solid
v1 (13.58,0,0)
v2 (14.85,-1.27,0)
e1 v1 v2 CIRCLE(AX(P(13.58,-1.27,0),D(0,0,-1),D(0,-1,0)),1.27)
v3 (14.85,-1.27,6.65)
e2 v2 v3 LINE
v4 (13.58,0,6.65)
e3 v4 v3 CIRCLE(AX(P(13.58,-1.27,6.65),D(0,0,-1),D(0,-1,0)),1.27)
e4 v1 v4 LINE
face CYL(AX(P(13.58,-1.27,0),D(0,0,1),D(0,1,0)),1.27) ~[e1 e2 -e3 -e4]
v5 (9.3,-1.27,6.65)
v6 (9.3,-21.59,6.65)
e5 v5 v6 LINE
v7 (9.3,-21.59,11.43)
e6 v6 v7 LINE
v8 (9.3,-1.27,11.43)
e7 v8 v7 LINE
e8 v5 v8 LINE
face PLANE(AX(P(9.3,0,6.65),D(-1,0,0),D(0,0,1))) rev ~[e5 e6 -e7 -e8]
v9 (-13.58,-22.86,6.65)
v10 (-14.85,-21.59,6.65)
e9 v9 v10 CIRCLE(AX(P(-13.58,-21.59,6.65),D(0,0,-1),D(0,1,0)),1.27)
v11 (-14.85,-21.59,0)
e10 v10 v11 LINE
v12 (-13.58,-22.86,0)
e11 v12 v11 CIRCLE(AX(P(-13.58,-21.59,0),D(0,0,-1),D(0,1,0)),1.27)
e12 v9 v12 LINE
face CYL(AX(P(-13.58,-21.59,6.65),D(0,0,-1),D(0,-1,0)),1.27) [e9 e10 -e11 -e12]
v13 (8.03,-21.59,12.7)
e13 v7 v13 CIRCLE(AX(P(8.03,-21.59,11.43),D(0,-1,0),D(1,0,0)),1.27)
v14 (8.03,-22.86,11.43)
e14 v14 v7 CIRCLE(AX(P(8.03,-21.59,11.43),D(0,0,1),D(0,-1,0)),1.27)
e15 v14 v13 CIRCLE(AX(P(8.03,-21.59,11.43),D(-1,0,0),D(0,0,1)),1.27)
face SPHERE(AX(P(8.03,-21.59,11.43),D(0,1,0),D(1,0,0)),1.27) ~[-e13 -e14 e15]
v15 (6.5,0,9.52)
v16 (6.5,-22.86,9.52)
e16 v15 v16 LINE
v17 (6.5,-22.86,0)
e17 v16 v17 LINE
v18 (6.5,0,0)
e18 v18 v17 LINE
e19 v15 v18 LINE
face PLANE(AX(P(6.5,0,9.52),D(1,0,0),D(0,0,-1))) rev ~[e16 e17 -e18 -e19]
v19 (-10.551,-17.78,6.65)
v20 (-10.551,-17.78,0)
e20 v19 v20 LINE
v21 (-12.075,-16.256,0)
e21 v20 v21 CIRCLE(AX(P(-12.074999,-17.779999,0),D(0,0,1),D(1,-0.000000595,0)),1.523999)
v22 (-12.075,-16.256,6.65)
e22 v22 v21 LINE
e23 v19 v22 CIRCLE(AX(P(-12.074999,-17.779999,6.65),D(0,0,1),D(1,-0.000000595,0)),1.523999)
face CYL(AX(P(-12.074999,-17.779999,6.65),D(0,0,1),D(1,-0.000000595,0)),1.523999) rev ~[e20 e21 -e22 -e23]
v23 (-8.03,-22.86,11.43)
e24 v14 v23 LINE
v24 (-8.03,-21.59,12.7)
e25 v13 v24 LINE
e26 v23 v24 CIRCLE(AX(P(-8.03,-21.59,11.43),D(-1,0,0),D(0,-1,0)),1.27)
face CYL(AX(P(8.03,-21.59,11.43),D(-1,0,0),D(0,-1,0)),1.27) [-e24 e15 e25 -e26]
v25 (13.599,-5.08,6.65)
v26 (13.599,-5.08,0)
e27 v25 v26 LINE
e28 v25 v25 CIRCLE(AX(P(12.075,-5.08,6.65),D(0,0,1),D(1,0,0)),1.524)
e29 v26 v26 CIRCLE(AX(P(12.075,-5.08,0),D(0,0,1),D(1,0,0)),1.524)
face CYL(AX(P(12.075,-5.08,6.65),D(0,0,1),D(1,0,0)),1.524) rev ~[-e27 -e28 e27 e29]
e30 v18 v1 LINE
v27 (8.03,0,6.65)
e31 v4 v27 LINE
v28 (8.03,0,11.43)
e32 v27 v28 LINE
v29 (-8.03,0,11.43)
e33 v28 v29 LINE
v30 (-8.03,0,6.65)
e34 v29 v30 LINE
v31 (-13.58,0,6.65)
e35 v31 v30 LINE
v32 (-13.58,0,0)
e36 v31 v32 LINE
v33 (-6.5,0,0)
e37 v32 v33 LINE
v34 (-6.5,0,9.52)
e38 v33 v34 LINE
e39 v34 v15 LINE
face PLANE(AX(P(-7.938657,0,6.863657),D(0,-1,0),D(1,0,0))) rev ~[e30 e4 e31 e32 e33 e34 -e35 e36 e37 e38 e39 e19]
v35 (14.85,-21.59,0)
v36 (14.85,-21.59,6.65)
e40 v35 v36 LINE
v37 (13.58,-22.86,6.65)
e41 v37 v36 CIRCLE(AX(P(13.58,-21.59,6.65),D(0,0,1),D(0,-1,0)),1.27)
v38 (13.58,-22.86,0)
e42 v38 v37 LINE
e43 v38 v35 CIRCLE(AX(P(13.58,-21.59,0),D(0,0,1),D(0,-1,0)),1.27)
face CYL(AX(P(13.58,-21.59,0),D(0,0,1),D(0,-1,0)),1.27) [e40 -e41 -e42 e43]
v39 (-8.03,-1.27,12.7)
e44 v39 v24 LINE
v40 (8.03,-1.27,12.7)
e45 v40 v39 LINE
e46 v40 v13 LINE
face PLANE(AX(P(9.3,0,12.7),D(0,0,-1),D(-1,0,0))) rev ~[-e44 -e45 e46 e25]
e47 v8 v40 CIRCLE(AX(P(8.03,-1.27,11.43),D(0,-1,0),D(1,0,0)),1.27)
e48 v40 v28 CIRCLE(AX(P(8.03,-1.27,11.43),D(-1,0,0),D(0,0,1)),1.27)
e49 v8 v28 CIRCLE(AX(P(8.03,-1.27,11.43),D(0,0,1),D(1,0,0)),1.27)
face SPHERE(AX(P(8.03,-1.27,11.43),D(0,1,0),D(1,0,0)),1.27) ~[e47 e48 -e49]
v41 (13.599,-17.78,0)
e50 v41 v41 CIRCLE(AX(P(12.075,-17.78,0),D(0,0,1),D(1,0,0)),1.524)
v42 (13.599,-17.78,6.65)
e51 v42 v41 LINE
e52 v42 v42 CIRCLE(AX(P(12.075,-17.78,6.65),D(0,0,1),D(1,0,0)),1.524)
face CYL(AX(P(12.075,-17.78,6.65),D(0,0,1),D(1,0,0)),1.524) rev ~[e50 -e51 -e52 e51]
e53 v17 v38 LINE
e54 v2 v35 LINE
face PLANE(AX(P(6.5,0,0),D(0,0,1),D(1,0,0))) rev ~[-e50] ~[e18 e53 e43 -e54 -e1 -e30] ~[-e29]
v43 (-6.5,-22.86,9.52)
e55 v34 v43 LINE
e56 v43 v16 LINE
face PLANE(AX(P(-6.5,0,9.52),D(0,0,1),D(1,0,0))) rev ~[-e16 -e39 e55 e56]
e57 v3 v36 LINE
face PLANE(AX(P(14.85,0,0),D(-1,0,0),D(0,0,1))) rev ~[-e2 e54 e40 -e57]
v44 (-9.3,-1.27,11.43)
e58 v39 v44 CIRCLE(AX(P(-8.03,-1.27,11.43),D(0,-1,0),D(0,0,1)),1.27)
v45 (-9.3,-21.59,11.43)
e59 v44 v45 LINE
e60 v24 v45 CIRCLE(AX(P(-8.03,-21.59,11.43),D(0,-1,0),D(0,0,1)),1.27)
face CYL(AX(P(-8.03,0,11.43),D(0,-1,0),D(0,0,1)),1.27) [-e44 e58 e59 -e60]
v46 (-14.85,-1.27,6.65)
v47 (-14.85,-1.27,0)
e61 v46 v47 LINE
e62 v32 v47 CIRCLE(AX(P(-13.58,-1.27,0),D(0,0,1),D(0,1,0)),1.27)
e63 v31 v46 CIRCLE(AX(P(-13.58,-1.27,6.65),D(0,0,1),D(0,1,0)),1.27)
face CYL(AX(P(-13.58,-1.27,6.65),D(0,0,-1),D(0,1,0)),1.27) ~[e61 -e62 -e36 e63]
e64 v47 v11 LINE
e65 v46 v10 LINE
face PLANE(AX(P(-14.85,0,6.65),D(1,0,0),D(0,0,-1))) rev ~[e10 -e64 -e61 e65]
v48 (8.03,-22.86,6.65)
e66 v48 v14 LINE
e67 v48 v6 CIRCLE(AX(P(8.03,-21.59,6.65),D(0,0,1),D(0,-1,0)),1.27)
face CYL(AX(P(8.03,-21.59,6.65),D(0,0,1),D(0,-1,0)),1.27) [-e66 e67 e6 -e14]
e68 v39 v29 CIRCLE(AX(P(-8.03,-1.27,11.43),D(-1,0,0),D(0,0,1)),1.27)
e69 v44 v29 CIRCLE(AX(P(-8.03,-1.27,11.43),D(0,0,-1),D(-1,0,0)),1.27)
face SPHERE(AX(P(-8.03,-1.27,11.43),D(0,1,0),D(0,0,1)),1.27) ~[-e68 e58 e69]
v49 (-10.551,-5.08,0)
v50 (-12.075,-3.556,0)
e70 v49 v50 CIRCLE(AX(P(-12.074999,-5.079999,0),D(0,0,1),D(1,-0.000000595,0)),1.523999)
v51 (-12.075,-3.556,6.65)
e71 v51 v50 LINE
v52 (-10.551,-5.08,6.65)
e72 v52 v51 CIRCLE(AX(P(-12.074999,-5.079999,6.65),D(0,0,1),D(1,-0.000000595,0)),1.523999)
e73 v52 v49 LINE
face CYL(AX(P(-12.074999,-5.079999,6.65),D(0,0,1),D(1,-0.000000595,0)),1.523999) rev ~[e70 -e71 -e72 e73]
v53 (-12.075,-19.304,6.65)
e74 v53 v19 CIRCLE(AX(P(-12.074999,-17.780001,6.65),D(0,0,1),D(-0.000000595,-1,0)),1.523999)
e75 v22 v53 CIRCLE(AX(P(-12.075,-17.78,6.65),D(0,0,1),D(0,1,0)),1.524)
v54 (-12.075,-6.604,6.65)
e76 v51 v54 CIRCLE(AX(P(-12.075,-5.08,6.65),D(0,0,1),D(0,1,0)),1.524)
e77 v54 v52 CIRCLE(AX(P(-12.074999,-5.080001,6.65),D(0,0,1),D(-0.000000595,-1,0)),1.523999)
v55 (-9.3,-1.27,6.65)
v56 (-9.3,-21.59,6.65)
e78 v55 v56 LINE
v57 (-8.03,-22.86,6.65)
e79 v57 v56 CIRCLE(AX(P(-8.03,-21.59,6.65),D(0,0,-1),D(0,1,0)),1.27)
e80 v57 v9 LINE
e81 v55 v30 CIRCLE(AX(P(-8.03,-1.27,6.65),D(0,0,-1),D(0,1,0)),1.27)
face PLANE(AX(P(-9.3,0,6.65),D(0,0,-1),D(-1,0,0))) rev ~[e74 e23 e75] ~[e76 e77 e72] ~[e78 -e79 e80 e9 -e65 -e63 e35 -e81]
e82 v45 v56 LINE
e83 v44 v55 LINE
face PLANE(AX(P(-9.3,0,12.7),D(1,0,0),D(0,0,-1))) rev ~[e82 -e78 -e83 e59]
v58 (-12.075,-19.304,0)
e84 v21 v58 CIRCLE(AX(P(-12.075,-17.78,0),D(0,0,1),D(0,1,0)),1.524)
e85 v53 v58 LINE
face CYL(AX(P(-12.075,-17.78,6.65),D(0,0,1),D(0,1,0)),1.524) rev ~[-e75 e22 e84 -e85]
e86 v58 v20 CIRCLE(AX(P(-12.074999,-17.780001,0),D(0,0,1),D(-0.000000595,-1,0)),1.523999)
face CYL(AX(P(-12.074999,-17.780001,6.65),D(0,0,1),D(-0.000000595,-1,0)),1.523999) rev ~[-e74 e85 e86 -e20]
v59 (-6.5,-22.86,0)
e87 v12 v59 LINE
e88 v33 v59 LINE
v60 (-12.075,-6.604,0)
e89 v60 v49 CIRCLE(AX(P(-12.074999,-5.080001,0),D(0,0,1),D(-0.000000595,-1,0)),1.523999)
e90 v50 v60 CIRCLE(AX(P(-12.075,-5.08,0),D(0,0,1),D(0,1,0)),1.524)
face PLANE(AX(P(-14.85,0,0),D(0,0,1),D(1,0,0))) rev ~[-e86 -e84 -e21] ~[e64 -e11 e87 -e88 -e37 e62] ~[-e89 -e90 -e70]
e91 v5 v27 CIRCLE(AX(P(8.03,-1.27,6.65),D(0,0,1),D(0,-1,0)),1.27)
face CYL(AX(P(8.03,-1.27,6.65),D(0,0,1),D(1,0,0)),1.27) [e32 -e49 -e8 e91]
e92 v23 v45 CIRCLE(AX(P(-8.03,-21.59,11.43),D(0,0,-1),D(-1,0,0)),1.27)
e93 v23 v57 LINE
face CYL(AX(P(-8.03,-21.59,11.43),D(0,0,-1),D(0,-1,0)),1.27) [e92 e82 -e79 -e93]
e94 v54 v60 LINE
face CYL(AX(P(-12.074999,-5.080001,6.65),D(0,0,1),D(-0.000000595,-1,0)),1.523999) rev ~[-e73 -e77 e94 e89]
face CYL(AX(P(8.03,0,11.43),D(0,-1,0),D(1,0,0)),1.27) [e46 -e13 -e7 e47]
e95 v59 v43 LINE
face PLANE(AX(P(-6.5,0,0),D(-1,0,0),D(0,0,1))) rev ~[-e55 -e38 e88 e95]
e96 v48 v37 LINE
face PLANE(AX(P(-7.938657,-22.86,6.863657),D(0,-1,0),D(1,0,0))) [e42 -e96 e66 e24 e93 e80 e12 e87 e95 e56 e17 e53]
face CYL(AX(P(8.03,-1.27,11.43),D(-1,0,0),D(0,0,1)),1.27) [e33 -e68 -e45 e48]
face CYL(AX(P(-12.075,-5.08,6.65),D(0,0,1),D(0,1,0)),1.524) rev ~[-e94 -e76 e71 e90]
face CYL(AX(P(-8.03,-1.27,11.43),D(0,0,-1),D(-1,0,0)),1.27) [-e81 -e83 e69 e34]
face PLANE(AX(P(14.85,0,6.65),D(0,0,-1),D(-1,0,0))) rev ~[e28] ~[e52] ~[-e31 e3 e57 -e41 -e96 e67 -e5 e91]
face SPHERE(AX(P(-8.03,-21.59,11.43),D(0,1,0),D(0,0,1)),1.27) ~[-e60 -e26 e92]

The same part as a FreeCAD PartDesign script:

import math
import FreeCAD as App
import Part
import Sketcher
from FreeCAD import Vector
Q = App.Units.Quantity


def edges_at(feature, points):
    """Names of the edges that pass closest to the given points."""
    edges = feature.Shape.Edges
    near = lambda p: min(range(len(edges)), key=lambda i: edges[i].distToShape(Part.Vertex(*p))[0])
    return sorted({f"Edge{near(p) + 1}" for p in points})


def add_polygon(sketch, points):
    """Adds a closed chain of lines whose ends are joined by coincident constraints."""
    first, n = sketch.GeometryCount, len(points)
    for a, b in zip(points, points[1:] + points[:1]):
        sketch.addGeometry(Part.LineSegment(App.Vector(*a, 0), App.Vector(*b, 0)), False)
    for i in range(n):
        sketch.addConstraint(Sketcher.Constraint("Coincident", first + i, 2, first + (i + 1) % n, 1))

doc = App.newDocument("Part")
params = doc.addObject("Spreadsheet::Sheet", "Params")
for row, (alias, value) in enumerate([
    ("pad1_length", "0.9 in"),
    ("fillet_radius", "0.05 in"),
    ("sketch2_diameter", "0.12 in"),
    ("fillet2_radius", "0.05 in"),
], start=1):
    params.set(f"A{row}", alias)
    params.set(f"B{row}", "=" + value)
    params.setAlias(f"B{row}", alias)

body = doc.addObject("PartDesign::Body", "Body")

sketch1 = body.newObject("Sketcher::SketchObject", "Sketch")
sketch1.AttachmentSupport = (doc.getObject("XZ_Plane"), [""])
sketch1.MapMode = "FlatFace"
add_polygon(sketch1, [(-15, 7), (-15, 0), (-6, 0), (-6, 10), (6, 10), (6, 0), (15, 0), (15, 7), (9, 7), (9, 13), (-9, 13), (-9, 7)])
sketch1.addConstraint(Sketcher.Constraint("Vertical", 0))
sketch1.addConstraint(Sketcher.Constraint("Horizontal", 1))
sketch1.addConstraint(Sketcher.Constraint("Vertical", 2))
sketch1.addConstraint(Sketcher.Constraint("Horizontal", 3))
sketch1.addConstraint(Sketcher.Constraint("Vertical", 4))
sketch1.addConstraint(Sketcher.Constraint("Horizontal", 5))
sketch1.addConstraint(Sketcher.Constraint("Vertical", 6))
sketch1.addConstraint(Sketcher.Constraint("Horizontal", 7))
sketch1.addConstraint(Sketcher.Constraint("Vertical", 8))
sketch1.addConstraint(Sketcher.Constraint("Horizontal", 9))
sketch1.addConstraint(Sketcher.Constraint("Vertical", 10))
sketch1.addConstraint(Sketcher.Constraint("Horizontal", 11))
sketch1.addConstraint(Sketcher.Constraint("Symmetric", 1, 2, 4, 2, -1, 1))
sketch1.addConstraint(Sketcher.Constraint("Symmetric", 0, 2, 5, 2, -2))
sketch1.addConstraint(Sketcher.Constraint("Symmetric", 7, 2, 10, 2, -2))
sketch1.addConstraint(Sketcher.Constraint("DistanceY", -1, 1, 8, 2, Q("0.5 in")))
sketch1.addConstraint(Sketcher.Constraint("DistanceX", 1, 1, 1, 2, 8.35))
sketch1.addConstraint(Sketcher.Constraint("DistanceX", 3, 1, 3, 2, 13.0))
sketch1.addConstraint(Sketcher.Constraint("DistanceX", 7, 2, 7, 1, 5.55))
sketch1.addConstraint(Sketcher.Constraint("DistanceY", 0, 2, 0, 1, 6.65))
sketch1.addConstraint(Sketcher.Constraint("DistanceY", 2, 1, 2, 2, 9.52))
pad1 = body.newObject("PartDesign::Pad", "Pad")
pad1.Profile = sketch1
pad1.setExpression("Length", "Params.pad1_length")
doc.recompute()

fillet = body.newObject("PartDesign::Fillet", "Fillet")
fillet.Base = (pad1, edges_at(pad1, [(9.3, -11.43, 12.7), (-9.3, -11.43, 12.7)]))
fillet.setExpression("Radius", "Params.fillet_radius")

sketch2 = body.newObject("Sketcher::SketchObject", "Sketch001")
sketch2.AttachmentSupport = (doc.getObject("XY_Plane"), [""])
sketch2.MapMode = "FlatFace"
sketch2.AttachmentOffset = App.Placement(Vector(0, 0, 6.65), App.Rotation())
sketch2.addGeometry(Part.ArcOfCircle(Part.Circle(Vector(-12.1, -5.1, 0), Vector(0, 0, 1), 1.5), math.radians(0), math.radians(90)), False)
sketch2.addGeometry(Part.ArcOfCircle(Part.Circle(Vector(-12.1, -5.1, 0), Vector(0, 0, 1), 1.5), math.radians(90), math.radians(270)), False)
sketch2.addGeometry(Part.ArcOfCircle(Part.Circle(Vector(-12.1, -5.1, 0), Vector(0, 0, 1), 1.5), math.radians(-90), math.radians(0)), False)
sketch2.addGeometry(Part.ArcOfCircle(Part.Circle(Vector(-12.1, -17.8, 0), Vector(0, 0, 1), 1.5), math.radians(0), math.radians(90)), False)
sketch2.addGeometry(Part.ArcOfCircle(Part.Circle(Vector(-12.1, -17.8, 0), Vector(0, 0, 1), 1.5), math.radians(90), math.radians(270)), False)
sketch2.addGeometry(Part.ArcOfCircle(Part.Circle(Vector(-12.1, -17.8, 0), Vector(0, 0, 1), 1.5), math.radians(-90), math.radians(0)), False)
sketch2.addGeometry(Part.Circle(Vector(12.1, -5.1, 0), Vector(0, 0, 1), 1.5), False)
sketch2.addGeometry(Part.Circle(Vector(12.1, -17.8, 0), Vector(0, 0, 1), 1.5), False)
sketch2.addConstraint(Sketcher.Constraint("Tangent", 0, 2, 1, 1))
sketch2.addConstraint(Sketcher.Constraint("Tangent", 1, 2, 2, 1))
sketch2.addConstraint(Sketcher.Constraint("Tangent", 2, 2, 0, 1))
sketch2.addConstraint(Sketcher.Constraint("Tangent", 3, 2, 4, 1))
sketch2.addConstraint(Sketcher.Constraint("Tangent", 4, 2, 5, 1))
sketch2.addConstraint(Sketcher.Constraint("Tangent", 5, 2, 3, 1))
sketch2.addConstraint(Sketcher.Constraint("Equal", 2, 3))
sketch2.addConstraint(Sketcher.Constraint("Equal", 5, 6))
sketch2.addConstraint(Sketcher.Constraint("Equal", 6, 7))
sketch2.addConstraint(Sketcher.Constraint("Symmetric", 0, 3, 6, 3, -2))
sketch2.addConstraint(Sketcher.Constraint("Symmetric", 3, 3, 7, 3, -2))
sketch2.addConstraint(Sketcher.Constraint("Horizontal", 6, 3, 2, 2))
sketch2.addConstraint(Sketcher.Constraint("Horizontal", 7, 3, 5, 2))
sketch2.addConstraint(Sketcher.Constraint("Vertical", 2, 3, 3, 3))
sketch2.addConstraint(Sketcher.Constraint("Vertical", 5, 3, 0, 2))
sketch2.addConstraint(Sketcher.Constraint("Vertical", 0, 2, 1, 2))
sketch2.addConstraint(Sketcher.Constraint("Vertical", 1, 2, 3, 2))
sketch2.addConstraint(Sketcher.Constraint("Vertical", 3, 2, 4, 2))
sketch2.addConstraint(Sketcher.Constraint("Diameter", 6, Q("0.12 in")))
sketch2.addConstraint(Sketcher.Constraint("DistanceY", 0, 3, -1, 1, Q("0.2 in")))
sketch2.addConstraint(Sketcher.Constraint("DistanceY", 3, 3, -1, 1, Q("0.7 in")))
sketch2.addConstraint(Sketcher.Constraint("DistanceX", 0, 3, -1, 1, 12.074999))
sketch2.setExpression("Constraints[18]", "Params.sketch2_diameter")
pocket1 = body.newObject("PartDesign::Pocket", "Pocket")
pocket1.Profile = sketch2
pocket1.Type = "ThroughAll"
doc.recompute()

fillet2 = body.newObject("PartDesign::Fillet", "Fillet001")
fillet2.Base = (pocket1, edges_at(pocket1, [
    (14.85, 0, 3.325),
    (9.3, 0, 9.04),
    (-14.85, 0, 3.325),
    (-9.3, -22.86, 9.04),
    (-14.85, -22.86, 3.325),
    (14.85, -22.86, 3.325),
]))
fillet2.setExpression("Radius", "Params.fillet2_radius")

doc.recompute()
